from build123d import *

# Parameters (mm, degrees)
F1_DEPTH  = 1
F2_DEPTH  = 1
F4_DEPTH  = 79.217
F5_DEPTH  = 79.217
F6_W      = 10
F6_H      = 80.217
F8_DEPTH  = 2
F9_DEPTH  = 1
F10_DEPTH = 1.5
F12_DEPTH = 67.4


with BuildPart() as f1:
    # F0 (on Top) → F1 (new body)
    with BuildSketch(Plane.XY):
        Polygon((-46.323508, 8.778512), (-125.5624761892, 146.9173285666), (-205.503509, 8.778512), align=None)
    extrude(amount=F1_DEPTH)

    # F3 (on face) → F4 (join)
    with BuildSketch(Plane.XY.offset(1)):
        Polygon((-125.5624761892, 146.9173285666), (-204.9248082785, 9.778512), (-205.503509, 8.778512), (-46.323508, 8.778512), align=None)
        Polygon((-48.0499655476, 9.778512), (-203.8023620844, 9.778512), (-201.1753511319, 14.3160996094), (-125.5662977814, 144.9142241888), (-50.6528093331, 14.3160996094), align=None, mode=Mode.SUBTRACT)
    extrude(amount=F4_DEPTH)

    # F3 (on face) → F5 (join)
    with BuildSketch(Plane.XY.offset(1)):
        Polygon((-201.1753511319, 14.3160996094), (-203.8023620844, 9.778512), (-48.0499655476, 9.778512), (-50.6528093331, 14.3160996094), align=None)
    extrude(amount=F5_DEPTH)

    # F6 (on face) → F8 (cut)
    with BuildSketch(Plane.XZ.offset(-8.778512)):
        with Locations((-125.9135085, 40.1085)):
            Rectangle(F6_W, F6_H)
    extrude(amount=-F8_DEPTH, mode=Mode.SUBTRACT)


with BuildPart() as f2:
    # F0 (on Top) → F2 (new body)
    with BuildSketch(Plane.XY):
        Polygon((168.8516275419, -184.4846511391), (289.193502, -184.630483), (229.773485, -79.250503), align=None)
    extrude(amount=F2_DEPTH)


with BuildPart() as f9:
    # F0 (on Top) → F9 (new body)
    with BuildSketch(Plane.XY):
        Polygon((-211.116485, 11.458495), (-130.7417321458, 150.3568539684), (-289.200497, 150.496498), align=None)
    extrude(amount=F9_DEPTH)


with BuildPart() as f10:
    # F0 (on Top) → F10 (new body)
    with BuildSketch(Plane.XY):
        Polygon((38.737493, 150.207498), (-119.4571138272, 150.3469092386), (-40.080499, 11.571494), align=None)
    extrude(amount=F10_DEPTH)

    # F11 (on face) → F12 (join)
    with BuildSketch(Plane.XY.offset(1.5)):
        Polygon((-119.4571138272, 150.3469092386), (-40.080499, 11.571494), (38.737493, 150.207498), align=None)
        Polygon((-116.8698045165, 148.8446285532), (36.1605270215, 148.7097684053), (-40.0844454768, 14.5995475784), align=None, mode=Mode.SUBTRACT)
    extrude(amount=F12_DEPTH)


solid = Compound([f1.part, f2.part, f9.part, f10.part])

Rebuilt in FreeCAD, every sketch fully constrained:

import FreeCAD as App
import Part
import Sketcher

V = App.Vector

doc = App.newDocument("Part")
params = doc.addObject("Spreadsheet::Sheet", "Params")
for row, (alias, value) in enumerate([
    ("sketch1_width", "159.180001 mm"),
    ("pad1_length", "1 mm"),
    ("sketch2_width", "159.180001 mm"),
    ("pad2_length", "79.217 mm"),
    ("pad3_length", "79.217 mm"),
    ("sketch4_width", "10 mm"),
    ("pocket1_length", "2 mm"),
    ("pad4_length", "1 mm"),
    ("pad5_length", "1 mm"),
    ("pad6_length", "1.5 mm"),
    ("pad7_length", "67.4 mm"),
], start=1):
    params.set(f"A{row}", alias)
    params.set(f"B{row}", "=" + value)
    params.setAlias(f"B{row}", alias)

body = doc.addObject("PartDesign::Body", "Body")

# Sketch on XY plane
sketch1 = body.newObject("Sketcher::SketchObject", "Sketch")
sketch1.AttachmentSupport = (doc.getObject("XY_Plane"), [""])
sketch1.MapMode = "FlatFace"
sketch1.addGeometry(Part.LineSegment(V(-46, 9, 0), V(-126, 147, 0)), False)
sketch1.addGeometry(Part.LineSegment(V(-126, 147, 0), V(-206, 9, 0)), False)
sketch1.addGeometry(Part.LineSegment(V(-206, 9, 0), V(-46, 9, 0)), False)
sketch1.addConstraint(Sketcher.Constraint("Coincident", 0, 2, 1, 1))
sketch1.addConstraint(Sketcher.Constraint("Coincident", 1, 2, 2, 1))
sketch1.addConstraint(Sketcher.Constraint("Coincident", 2, 2, 0, 1))
sketch1.addConstraint(Sketcher.Constraint("Horizontal", 2))
sketch1.addConstraint(Sketcher.Constraint("DistanceX", 2, 1, 2, 2, 159.180001))
sketch1.addConstraint(Sketcher.Constraint("DistanceY", -1, 1, 0, 2, 146.917329))
sketch1.addConstraint(Sketcher.Constraint("DistanceX", 1, 2, -1, 1, 205.503509))
sketch1.addConstraint(Sketcher.Constraint("DistanceY", -1, 1, 1, 2, 8.778512))
sketch1.addConstraint(Sketcher.Constraint("DistanceX", 0, 2, 2, 2, 79.238968))
sketch1.setExpression("Constraints[4]", "Params.sketch1_width")
pad1 = body.newObject("PartDesign::Pad", "Pad")
pad1.Profile = sketch1
pad1.setExpression("Length", "Params.pad1_length")

# Sketch on XY plane
sketch2 = body.newObject("Sketcher::SketchObject", "Sketch001")
sketch2.AttachmentSupport = (doc.getObject("XY_Plane"), [""])
sketch2.MapMode = "FlatFace"
sketch2.AttachmentOffset = App.Placement(V(0, 0, 1), App.Rotation())
sketch2.addGeometry(Part.LineSegment(V(-125.562476, 146.917329, 0), V(-204.924808, 9.778512, 0)), False)
sketch2.addGeometry(Part.LineSegment(V(-204.924808, 9.778512, 0), V(-205.503509, 8.778512, 0)), False)
sketch2.addGeometry(Part.LineSegment(V(-205.503509, 8.778512, 0), V(-46.323508, 8.778512, 0)), False)
sketch2.addGeometry(Part.LineSegment(V(-46.323508, 8.778512, 0), V(-125.562476, 146.917329, 0)), False)
sketch2.addGeometry(Part.LineSegment(V(-125.566298, 144.914224, 0), V(-48.049966, 9.778512, 0)), False)
sketch2.addGeometry(Part.LineSegment(V(-48.049966, 9.778512, 0), V(-203.802362, 9.778512, 0)), False)
sketch2.addGeometry(Part.LineSegment(V(-203.802362, 9.778512, 0), V(-201.175351, 14.3161, 0)), False)
sketch2.addGeometry(Part.LineSegment(V(-201.175351, 14.3161, 0), V(-125.566298, 144.914224, 0)), False)
sketch2.addConstraint(Sketcher.Constraint("Coincident", 0, 2, 1, 1))
sketch2.addConstraint(Sketcher.Constraint("Coincident", 1, 2, 2, 1))
sketch2.addConstraint(Sketcher.Constraint("Coincident", 2, 2, 3, 1))
sketch2.addConstraint(Sketcher.Constraint("Coincident", 3, 2, 0, 1))
sketch2.addConstraint(Sketcher.Constraint("Coincident", 4, 2, 5, 1))
sketch2.addConstraint(Sketcher.Constraint("Coincident", 5, 2, 6, 1))
sketch2.addConstraint(Sketcher.Constraint("Coincident", 6, 2, 7, 1))
sketch2.addConstraint(Sketcher.Constraint("Coincident", 7, 2, 4, 1))
sketch2.addConstraint(Sketcher.Constraint("Horizontal", 2))
sketch2.addConstraint(Sketcher.Constraint("Horizontal", 5))
sketch2.addConstraint(Sketcher.Constraint("Parallel", 0, 1))
sketch2.addConstraint(Sketcher.Constraint("Parallel", 3, 4))
sketch2.addConstraint(Sketcher.Constraint("Parallel", 6, 7))
sketch2.addConstraint(Sketcher.Constraint("Horizontal", 0, 2, 4, 2))
sketch2.addConstraint(Sketcher.Constraint("DistanceY", 1, 2, 0, 2, 1.0))
sketch2.addConstraint(Sketcher.Constraint("DistanceX", 2, 1, 2, 2, 159.180001))
sketch2.addConstraint(Sketcher.Constraint("DistanceY", -1, 1, 6, 2, 14.3161))
sketch2.addConstraint(Sketcher.Constraint("DistanceX", 1, 2, 0, 2, 0.578701))
sketch2.addConstraint(Sketcher.Constraint("Distance", 4, 155.789738))
sketch2.addConstraint(Sketcher.Constraint("DistanceX", 5, 2, 5, 1, 155.752397))
sketch2.addConstraint(Sketcher.Constraint("DistanceX", 0, 2, -1, 1, 204.924808))
sketch2.addConstraint(Sketcher.Constraint("DistanceY", -1, 1, 0, 2, 9.778512))
sketch2.addConstraint(Sketcher.Constraint("DistanceY", -1, 1, 3, 2, 146.917329))
sketch2.addConstraint(Sketcher.Constraint("DistanceX", 6, 2, -1, 1, 201.175351))
sketch2.setExpression("Constraints[15]", "Params.sketch2_width")
pad2 = body.newObject("PartDesign::Pad", "Pad001")
pad2.Profile = sketch2
pad2.setExpression("Length", "Params.pad2_length")

# Sketch on XY plane
sketch3 = body.newObject("Sketcher::SketchObject", "Sketch002")
sketch3.AttachmentSupport = (doc.getObject("XY_Plane"), [""])
sketch3.MapMode = "FlatFace"
sketch3.AttachmentOffset = App.Placement(V(0, 0, 1), App.Rotation())
sketch3.addGeometry(Part.LineSegment(V(-201, 14, 0), V(-204, 10, 0)), False)
sketch3.addGeometry(Part.LineSegment(V(-204, 10, 0), V(-48, 10, 0)), False)
sketch3.addGeometry(Part.LineSegment(V(-48, 10, 0), V(-51, 14, 0)), False)
sketch3.addGeometry(Part.LineSegment(V(-51, 14, 0), V(-201, 14, 0)), False)
sketch3.addConstraint(Sketcher.Constraint("Coincident", 0, 2, 1, 1))
sketch3.addConstraint(Sketcher.Constraint("Coincident", 1, 2, 2, 1))
sketch3.addConstraint(Sketcher.Constraint("Coincident", 2, 2, 3, 1))
sketch3.addConstraint(Sketcher.Constraint("Coincident", 3, 2, 0, 1))
sketch3.addConstraint(Sketcher.Constraint("Horizontal", 1))
sketch3.addConstraint(Sketcher.Constraint("Horizontal", 3))
sketch3.addConstraint(Sketcher.Constraint("DistanceX", 3, 2, 3, 1, 150.522542))
sketch3.addConstraint(Sketcher.Constraint("DistanceY", -1, 1, 2, 2, 14.3161))
sketch3.addConstraint(Sketcher.Constraint("Distance", 2, 5.231109))
sketch3.addConstraint(Sketcher.Constraint("DistanceX", 1, 1, 1, 2, 155.752397))
sketch3.addConstraint(Sketcher.Constraint("DistanceY", -1, 1, 0, 2, 9.778512))
sketch3.addConstraint(Sketcher.Constraint("DistanceX", 2, 2, -1, 1, 50.652809))
pad3 = body.newObject("PartDesign::Pad", "Pad002")
pad3.Profile = sketch3
pad3.setExpression("Length", "Params.pad3_length")

# Sketch on XZ plane
sketch4 = body.newObject("Sketcher::SketchObject", "Sketch003")
sketch4.AttachmentSupport = (doc.getObject("XZ_Plane"), [""])
sketch4.MapMode = "FlatFace"
sketch4.AttachmentOffset = App.Placement(V(0, 0, -8.778512), App.Rotation())
sketch4.addGeometry(Part.LineSegment(V(-131, 80, 0), V(-131, 0, 0)), False)
sketch4.addGeometry(Part.LineSegment(V(-131, 0, 0), V(-121, 0, 0)), False)
sketch4.addGeometry(Part.LineSegment(V(-121, 0, 0), V(-121, 80, 0)), False)
sketch4.addGeometry(Part.LineSegment(V(-121, 80, 0), V(-131, 80, 0)), False)
sketch4.addConstraint(Sketcher.Constraint("Coincident", 0, 2, 1, 1))
sketch4.addConstraint(Sketcher.Constraint("Coincident", 1, 2, 2, 1))
sketch4.addConstraint(Sketcher.Constraint("Coincident", 2, 2, 3, 1))
sketch4.addConstraint(Sketcher.Constraint("Coincident", 3, 2, 0, 1))
sketch4.addConstraint(Sketcher.Constraint("Vertical", 0))
sketch4.addConstraint(Sketcher.Constraint("Horizontal", 1))
sketch4.addConstraint(Sketcher.Constraint("Vertical", 2))
sketch4.addConstraint(Sketcher.Constraint("Horizontal", 3))
sketch4.addConstraint(Sketcher.Constraint("PointOnObject", 0, 2, -1))
sketch4.addConstraint(Sketcher.Constraint("DistanceX", 1, 1, 1, 2, 10.0))
sketch4.addConstraint(Sketcher.Constraint("DistanceY", 0, 2, 0, 1, 80.217))
sketch4.addConstraint(Sketcher.Constraint("DistanceX", 0, 2, -1, 1, 130.913509))
sketch4.setExpression("Constraints[9]", "Params.sketch4_width")
pocket1 = body.newObject("PartDesign::Pocket", "Pocket")
pocket1.Profile = sketch4
pocket1.setExpression("Length", "Params.pocket1_length")
body2 = doc.addObject("PartDesign::Body", "Body001")

# Sketch on XY plane
sketch5 = body2.newObject("Sketcher::SketchObject", "Sketch004")
sketch5.AttachmentSupport = (doc.getObject("XY_Plane001"), [""])
sketch5.MapMode = "FlatFace"
sketch5.addGeometry(Part.LineSegment(V(169, -184, 0), V(289, -185, 0)), False)
sketch5.addGeometry(Part.LineSegment(V(289, -185, 0), V(230, -79, 0)), False)
sketch5.addGeometry(Part.LineSegment(V(230, -79, 0), V(169, -184, 0)), False)
sketch5.addConstraint(Sketcher.Constraint("Coincident", 0, 2, 1, 1))
sketch5.addConstraint(Sketcher.Constraint("Coincident", 1, 2, 2, 1))
sketch5.addConstraint(Sketcher.Constraint("Coincident", 2, 2, 0, 1))
sketch5.addConstraint(Sketcher.Constraint("Distance", 1, 120.978009))
sketch5.addConstraint(Sketcher.Constraint("Distance", 2, 121.596458))
sketch5.addConstraint(Sketcher.Constraint("DistanceY", 2, 2, -1, 1, 184.484651))
sketch5.addConstraint(Sketcher.Constraint("DistanceY", 0, 2, 1, 2, 105.37998))
sketch5.addConstraint(Sketcher.Constraint("DistanceY", 0, 2, 2, 2, 0.145832))
sketch5.addConstraint(Sketcher.Constraint("DistanceX", -1, 1, 0, 2, 289.193502))
pad4 = body2.newObject("PartDesign::Pad", "Pad003")
pad4.Profile = sketch5
pad4.setExpression("Length", "Params.pad4_length")
body3 = doc.addObject("PartDesign::Body", "Body002")

# Sketch on XY plane
sketch6 = body3.newObject("Sketcher::SketchObject", "Sketch005")
sketch6.AttachmentSupport = (doc.getObject("XY_Plane002"), [""])
sketch6.MapMode = "FlatFace"
sketch6.addGeometry(Part.LineSegment(V(-211, 11, 0), V(-131, 150, 0)), False)
sketch6.addGeometry(Part.LineSegment(V(-131, 150, 0), V(-289, 150, 0)), False)
sketch6.addGeometry(Part.LineSegment(V(-289, 150, 0), V(-211, 11, 0)), False)
sketch6.addConstraint(Sketcher.Constraint("Coincident", 0, 2, 1, 1))
sketch6.addConstraint(Sketcher.Constraint("Coincident", 1, 2, 2, 1))
sketch6.addConstraint(Sketcher.Constraint("Coincident", 2, 2, 0, 1))
sketch6.addConstraint(Sketcher.Constraint("DistanceY", -1, 1, 1, 2, 150.496498))
sketch6.addConstraint(Sketcher.Constraint("Distance", 0, 160.476961))
sketch6.addConstraint(Sketcher.Constraint("DistanceX", 1, 2, 2, 2, 78.084012))
sketch6.addConstraint(Sketcher.Constraint("DistanceY", 2, 2, 0, 2, 138.898359))
sketch6.addConstraint(Sketcher.Constraint("Distance", 2, 159.463724))
sketch6.addConstraint(Sketcher.Constraint("DistanceX", 0, 2, -1, 1, 130.741732))
pad5 = body3.newObject("PartDesign::Pad", "Pad004")
pad5.Profile = sketch6
pad5.setExpression("Length", "Params.pad5_length")
body4 = doc.addObject("PartDesign::Body", "Body003")

# Sketch on XY plane
sketch7 = body4.newObject("Sketcher::SketchObject", "Sketch006")
sketch7.AttachmentSupport = (doc.getObject("XY_Plane003"), [""])
sketch7.MapMode = "FlatFace"
sketch7.addGeometry(Part.LineSegment(V(39, 150, 0), V(-119, 150, 0)), False)
sketch7.addGeometry(Part.LineSegment(V(-119, 150, 0), V(-40, 12, 0)), False)
sketch7.addGeometry(Part.LineSegment(V(-40, 12, 0), V(39, 150, 0)), False)
sketch7.addConstraint(Sketcher.Constraint("Coincident", 0, 2, 1, 1))
sketch7.addConstraint(Sketcher.Constraint("Coincident", 1, 2, 2, 1))
sketch7.addConstraint(Sketcher.Constraint("Coincident", 2, 2, 0, 1))
sketch7.addConstraint(Sketcher.Constraint("DistanceX", 1, 2, -1, 1, 40.080499))
sketch7.addConstraint(Sketcher.Constraint("Distance", 0, 158.194668))
sketch7.addConstraint(Sketcher.Constraint("DistanceY", -1, 1, 0, 2, 150.346909))
sketch7.addConstraint(Sketcher.Constraint("DistanceY", 2, 2, 0, 2, 0.139411))
sketch7.addConstraint(Sketcher.Constraint("Distance", 1, 159.872646))
sketch7.addConstraint(Sketcher.Constraint("Distance", 2, 159.474818))
pad6 = body4.newObject("PartDesign::Pad", "Pad005")
pad6.Profile = sketch7
pad6.setExpression("Length", "Params.pad6_length")

# Sketch on XY plane
sketch8 = body4.newObject("Sketcher::SketchObject", "Sketch007")
sketch8.AttachmentSupport = (doc.getObject("XY_Plane003"), [""])
sketch8.MapMode = "FlatFace"
sketch8.AttachmentOffset = App.Placement(V(0, 0, 1.5), App.Rotation())
sketch8.addGeometry(Part.LineSegment(V(-119, 150, 0), V(-40, 12, 0)), False)
sketch8.addGeometry(Part.LineSegment(V(-40, 12, 0), V(39, 150, 0)), False)
sketch8.addGeometry(Part.LineSegment(V(39, 150, 0), V(-119, 150, 0)), False)
sketch8.addGeometry(Part.LineSegment(V(-40, 15, 0), V(-117, 149, 0)), False)
sketch8.addGeometry(Part.LineSegment(V(-117, 149, 0), V(36, 149, 0)), False)
sketch8.addGeometry(Part.LineSegment(V(36, 149, 0), V(-40, 15, 0)), False)
sketch8.addConstraint(Sketcher.Constraint("Coincident", 0, 2, 1, 1))
sketch8.addConstraint(Sketcher.Constraint("Coincident", 1, 2, 2, 1))
sketch8.addConstraint(Sketcher.Constraint("Coincident", 2, 2, 0, 1))
sketch8.addConstraint(Sketcher.Constraint("Coincident", 3, 2, 4, 1))
sketch8.addConstraint(Sketcher.Constraint("Coincident", 4, 2, 5, 1))
sketch8.addConstraint(Sketcher.Constraint("Coincident", 5, 2, 3, 1))
sketch8.addConstraint(Sketcher.Constraint("Parallel", 0, 3))
sketch8.addConstraint(Sketcher.Constraint("Parallel", 2, 4))
sketch8.addConstraint(Sketcher.Constraint("Parallel", 1, 5))
sketch8.addConstraint(Sketcher.Constraint("DistanceX", 0, 2, -1, 1, 40.080499))
sketch8.addConstraint(Sketcher.Constraint("Distance", 2, 158.194668))
sketch8.addConstraint(Sketcher.Constraint("Distance", 3, 154.653591))
sketch8.addConstraint(Sketcher.Constraint("Distance", 4, 153.030391))
sketch8.addConstraint(Sketcher.Constraint("Distance", 5, 154.26875))
sketch8.addConstraint(Sketcher.Constraint("DistanceY", -1, 1, 2, 2, 150.346909))
sketch8.addConstraint(Sketcher.Constraint("DistanceY", -1, 1, 3, 2, 148.844629))
sketch8.addConstraint(Sketcher.Constraint("DistanceY", -1, 1, 4, 2, 148.709768))
sketch8.addConstraint(Sketcher.Constraint("DistanceX", 2, 2, 3, 2, 2.587309))
pad7 = body4.newObject("PartDesign::Pad", "Pad006")
pad7.Profile = sketch8
pad7.setExpression("Length", "Params.pad7_length")

doc.recompute()
